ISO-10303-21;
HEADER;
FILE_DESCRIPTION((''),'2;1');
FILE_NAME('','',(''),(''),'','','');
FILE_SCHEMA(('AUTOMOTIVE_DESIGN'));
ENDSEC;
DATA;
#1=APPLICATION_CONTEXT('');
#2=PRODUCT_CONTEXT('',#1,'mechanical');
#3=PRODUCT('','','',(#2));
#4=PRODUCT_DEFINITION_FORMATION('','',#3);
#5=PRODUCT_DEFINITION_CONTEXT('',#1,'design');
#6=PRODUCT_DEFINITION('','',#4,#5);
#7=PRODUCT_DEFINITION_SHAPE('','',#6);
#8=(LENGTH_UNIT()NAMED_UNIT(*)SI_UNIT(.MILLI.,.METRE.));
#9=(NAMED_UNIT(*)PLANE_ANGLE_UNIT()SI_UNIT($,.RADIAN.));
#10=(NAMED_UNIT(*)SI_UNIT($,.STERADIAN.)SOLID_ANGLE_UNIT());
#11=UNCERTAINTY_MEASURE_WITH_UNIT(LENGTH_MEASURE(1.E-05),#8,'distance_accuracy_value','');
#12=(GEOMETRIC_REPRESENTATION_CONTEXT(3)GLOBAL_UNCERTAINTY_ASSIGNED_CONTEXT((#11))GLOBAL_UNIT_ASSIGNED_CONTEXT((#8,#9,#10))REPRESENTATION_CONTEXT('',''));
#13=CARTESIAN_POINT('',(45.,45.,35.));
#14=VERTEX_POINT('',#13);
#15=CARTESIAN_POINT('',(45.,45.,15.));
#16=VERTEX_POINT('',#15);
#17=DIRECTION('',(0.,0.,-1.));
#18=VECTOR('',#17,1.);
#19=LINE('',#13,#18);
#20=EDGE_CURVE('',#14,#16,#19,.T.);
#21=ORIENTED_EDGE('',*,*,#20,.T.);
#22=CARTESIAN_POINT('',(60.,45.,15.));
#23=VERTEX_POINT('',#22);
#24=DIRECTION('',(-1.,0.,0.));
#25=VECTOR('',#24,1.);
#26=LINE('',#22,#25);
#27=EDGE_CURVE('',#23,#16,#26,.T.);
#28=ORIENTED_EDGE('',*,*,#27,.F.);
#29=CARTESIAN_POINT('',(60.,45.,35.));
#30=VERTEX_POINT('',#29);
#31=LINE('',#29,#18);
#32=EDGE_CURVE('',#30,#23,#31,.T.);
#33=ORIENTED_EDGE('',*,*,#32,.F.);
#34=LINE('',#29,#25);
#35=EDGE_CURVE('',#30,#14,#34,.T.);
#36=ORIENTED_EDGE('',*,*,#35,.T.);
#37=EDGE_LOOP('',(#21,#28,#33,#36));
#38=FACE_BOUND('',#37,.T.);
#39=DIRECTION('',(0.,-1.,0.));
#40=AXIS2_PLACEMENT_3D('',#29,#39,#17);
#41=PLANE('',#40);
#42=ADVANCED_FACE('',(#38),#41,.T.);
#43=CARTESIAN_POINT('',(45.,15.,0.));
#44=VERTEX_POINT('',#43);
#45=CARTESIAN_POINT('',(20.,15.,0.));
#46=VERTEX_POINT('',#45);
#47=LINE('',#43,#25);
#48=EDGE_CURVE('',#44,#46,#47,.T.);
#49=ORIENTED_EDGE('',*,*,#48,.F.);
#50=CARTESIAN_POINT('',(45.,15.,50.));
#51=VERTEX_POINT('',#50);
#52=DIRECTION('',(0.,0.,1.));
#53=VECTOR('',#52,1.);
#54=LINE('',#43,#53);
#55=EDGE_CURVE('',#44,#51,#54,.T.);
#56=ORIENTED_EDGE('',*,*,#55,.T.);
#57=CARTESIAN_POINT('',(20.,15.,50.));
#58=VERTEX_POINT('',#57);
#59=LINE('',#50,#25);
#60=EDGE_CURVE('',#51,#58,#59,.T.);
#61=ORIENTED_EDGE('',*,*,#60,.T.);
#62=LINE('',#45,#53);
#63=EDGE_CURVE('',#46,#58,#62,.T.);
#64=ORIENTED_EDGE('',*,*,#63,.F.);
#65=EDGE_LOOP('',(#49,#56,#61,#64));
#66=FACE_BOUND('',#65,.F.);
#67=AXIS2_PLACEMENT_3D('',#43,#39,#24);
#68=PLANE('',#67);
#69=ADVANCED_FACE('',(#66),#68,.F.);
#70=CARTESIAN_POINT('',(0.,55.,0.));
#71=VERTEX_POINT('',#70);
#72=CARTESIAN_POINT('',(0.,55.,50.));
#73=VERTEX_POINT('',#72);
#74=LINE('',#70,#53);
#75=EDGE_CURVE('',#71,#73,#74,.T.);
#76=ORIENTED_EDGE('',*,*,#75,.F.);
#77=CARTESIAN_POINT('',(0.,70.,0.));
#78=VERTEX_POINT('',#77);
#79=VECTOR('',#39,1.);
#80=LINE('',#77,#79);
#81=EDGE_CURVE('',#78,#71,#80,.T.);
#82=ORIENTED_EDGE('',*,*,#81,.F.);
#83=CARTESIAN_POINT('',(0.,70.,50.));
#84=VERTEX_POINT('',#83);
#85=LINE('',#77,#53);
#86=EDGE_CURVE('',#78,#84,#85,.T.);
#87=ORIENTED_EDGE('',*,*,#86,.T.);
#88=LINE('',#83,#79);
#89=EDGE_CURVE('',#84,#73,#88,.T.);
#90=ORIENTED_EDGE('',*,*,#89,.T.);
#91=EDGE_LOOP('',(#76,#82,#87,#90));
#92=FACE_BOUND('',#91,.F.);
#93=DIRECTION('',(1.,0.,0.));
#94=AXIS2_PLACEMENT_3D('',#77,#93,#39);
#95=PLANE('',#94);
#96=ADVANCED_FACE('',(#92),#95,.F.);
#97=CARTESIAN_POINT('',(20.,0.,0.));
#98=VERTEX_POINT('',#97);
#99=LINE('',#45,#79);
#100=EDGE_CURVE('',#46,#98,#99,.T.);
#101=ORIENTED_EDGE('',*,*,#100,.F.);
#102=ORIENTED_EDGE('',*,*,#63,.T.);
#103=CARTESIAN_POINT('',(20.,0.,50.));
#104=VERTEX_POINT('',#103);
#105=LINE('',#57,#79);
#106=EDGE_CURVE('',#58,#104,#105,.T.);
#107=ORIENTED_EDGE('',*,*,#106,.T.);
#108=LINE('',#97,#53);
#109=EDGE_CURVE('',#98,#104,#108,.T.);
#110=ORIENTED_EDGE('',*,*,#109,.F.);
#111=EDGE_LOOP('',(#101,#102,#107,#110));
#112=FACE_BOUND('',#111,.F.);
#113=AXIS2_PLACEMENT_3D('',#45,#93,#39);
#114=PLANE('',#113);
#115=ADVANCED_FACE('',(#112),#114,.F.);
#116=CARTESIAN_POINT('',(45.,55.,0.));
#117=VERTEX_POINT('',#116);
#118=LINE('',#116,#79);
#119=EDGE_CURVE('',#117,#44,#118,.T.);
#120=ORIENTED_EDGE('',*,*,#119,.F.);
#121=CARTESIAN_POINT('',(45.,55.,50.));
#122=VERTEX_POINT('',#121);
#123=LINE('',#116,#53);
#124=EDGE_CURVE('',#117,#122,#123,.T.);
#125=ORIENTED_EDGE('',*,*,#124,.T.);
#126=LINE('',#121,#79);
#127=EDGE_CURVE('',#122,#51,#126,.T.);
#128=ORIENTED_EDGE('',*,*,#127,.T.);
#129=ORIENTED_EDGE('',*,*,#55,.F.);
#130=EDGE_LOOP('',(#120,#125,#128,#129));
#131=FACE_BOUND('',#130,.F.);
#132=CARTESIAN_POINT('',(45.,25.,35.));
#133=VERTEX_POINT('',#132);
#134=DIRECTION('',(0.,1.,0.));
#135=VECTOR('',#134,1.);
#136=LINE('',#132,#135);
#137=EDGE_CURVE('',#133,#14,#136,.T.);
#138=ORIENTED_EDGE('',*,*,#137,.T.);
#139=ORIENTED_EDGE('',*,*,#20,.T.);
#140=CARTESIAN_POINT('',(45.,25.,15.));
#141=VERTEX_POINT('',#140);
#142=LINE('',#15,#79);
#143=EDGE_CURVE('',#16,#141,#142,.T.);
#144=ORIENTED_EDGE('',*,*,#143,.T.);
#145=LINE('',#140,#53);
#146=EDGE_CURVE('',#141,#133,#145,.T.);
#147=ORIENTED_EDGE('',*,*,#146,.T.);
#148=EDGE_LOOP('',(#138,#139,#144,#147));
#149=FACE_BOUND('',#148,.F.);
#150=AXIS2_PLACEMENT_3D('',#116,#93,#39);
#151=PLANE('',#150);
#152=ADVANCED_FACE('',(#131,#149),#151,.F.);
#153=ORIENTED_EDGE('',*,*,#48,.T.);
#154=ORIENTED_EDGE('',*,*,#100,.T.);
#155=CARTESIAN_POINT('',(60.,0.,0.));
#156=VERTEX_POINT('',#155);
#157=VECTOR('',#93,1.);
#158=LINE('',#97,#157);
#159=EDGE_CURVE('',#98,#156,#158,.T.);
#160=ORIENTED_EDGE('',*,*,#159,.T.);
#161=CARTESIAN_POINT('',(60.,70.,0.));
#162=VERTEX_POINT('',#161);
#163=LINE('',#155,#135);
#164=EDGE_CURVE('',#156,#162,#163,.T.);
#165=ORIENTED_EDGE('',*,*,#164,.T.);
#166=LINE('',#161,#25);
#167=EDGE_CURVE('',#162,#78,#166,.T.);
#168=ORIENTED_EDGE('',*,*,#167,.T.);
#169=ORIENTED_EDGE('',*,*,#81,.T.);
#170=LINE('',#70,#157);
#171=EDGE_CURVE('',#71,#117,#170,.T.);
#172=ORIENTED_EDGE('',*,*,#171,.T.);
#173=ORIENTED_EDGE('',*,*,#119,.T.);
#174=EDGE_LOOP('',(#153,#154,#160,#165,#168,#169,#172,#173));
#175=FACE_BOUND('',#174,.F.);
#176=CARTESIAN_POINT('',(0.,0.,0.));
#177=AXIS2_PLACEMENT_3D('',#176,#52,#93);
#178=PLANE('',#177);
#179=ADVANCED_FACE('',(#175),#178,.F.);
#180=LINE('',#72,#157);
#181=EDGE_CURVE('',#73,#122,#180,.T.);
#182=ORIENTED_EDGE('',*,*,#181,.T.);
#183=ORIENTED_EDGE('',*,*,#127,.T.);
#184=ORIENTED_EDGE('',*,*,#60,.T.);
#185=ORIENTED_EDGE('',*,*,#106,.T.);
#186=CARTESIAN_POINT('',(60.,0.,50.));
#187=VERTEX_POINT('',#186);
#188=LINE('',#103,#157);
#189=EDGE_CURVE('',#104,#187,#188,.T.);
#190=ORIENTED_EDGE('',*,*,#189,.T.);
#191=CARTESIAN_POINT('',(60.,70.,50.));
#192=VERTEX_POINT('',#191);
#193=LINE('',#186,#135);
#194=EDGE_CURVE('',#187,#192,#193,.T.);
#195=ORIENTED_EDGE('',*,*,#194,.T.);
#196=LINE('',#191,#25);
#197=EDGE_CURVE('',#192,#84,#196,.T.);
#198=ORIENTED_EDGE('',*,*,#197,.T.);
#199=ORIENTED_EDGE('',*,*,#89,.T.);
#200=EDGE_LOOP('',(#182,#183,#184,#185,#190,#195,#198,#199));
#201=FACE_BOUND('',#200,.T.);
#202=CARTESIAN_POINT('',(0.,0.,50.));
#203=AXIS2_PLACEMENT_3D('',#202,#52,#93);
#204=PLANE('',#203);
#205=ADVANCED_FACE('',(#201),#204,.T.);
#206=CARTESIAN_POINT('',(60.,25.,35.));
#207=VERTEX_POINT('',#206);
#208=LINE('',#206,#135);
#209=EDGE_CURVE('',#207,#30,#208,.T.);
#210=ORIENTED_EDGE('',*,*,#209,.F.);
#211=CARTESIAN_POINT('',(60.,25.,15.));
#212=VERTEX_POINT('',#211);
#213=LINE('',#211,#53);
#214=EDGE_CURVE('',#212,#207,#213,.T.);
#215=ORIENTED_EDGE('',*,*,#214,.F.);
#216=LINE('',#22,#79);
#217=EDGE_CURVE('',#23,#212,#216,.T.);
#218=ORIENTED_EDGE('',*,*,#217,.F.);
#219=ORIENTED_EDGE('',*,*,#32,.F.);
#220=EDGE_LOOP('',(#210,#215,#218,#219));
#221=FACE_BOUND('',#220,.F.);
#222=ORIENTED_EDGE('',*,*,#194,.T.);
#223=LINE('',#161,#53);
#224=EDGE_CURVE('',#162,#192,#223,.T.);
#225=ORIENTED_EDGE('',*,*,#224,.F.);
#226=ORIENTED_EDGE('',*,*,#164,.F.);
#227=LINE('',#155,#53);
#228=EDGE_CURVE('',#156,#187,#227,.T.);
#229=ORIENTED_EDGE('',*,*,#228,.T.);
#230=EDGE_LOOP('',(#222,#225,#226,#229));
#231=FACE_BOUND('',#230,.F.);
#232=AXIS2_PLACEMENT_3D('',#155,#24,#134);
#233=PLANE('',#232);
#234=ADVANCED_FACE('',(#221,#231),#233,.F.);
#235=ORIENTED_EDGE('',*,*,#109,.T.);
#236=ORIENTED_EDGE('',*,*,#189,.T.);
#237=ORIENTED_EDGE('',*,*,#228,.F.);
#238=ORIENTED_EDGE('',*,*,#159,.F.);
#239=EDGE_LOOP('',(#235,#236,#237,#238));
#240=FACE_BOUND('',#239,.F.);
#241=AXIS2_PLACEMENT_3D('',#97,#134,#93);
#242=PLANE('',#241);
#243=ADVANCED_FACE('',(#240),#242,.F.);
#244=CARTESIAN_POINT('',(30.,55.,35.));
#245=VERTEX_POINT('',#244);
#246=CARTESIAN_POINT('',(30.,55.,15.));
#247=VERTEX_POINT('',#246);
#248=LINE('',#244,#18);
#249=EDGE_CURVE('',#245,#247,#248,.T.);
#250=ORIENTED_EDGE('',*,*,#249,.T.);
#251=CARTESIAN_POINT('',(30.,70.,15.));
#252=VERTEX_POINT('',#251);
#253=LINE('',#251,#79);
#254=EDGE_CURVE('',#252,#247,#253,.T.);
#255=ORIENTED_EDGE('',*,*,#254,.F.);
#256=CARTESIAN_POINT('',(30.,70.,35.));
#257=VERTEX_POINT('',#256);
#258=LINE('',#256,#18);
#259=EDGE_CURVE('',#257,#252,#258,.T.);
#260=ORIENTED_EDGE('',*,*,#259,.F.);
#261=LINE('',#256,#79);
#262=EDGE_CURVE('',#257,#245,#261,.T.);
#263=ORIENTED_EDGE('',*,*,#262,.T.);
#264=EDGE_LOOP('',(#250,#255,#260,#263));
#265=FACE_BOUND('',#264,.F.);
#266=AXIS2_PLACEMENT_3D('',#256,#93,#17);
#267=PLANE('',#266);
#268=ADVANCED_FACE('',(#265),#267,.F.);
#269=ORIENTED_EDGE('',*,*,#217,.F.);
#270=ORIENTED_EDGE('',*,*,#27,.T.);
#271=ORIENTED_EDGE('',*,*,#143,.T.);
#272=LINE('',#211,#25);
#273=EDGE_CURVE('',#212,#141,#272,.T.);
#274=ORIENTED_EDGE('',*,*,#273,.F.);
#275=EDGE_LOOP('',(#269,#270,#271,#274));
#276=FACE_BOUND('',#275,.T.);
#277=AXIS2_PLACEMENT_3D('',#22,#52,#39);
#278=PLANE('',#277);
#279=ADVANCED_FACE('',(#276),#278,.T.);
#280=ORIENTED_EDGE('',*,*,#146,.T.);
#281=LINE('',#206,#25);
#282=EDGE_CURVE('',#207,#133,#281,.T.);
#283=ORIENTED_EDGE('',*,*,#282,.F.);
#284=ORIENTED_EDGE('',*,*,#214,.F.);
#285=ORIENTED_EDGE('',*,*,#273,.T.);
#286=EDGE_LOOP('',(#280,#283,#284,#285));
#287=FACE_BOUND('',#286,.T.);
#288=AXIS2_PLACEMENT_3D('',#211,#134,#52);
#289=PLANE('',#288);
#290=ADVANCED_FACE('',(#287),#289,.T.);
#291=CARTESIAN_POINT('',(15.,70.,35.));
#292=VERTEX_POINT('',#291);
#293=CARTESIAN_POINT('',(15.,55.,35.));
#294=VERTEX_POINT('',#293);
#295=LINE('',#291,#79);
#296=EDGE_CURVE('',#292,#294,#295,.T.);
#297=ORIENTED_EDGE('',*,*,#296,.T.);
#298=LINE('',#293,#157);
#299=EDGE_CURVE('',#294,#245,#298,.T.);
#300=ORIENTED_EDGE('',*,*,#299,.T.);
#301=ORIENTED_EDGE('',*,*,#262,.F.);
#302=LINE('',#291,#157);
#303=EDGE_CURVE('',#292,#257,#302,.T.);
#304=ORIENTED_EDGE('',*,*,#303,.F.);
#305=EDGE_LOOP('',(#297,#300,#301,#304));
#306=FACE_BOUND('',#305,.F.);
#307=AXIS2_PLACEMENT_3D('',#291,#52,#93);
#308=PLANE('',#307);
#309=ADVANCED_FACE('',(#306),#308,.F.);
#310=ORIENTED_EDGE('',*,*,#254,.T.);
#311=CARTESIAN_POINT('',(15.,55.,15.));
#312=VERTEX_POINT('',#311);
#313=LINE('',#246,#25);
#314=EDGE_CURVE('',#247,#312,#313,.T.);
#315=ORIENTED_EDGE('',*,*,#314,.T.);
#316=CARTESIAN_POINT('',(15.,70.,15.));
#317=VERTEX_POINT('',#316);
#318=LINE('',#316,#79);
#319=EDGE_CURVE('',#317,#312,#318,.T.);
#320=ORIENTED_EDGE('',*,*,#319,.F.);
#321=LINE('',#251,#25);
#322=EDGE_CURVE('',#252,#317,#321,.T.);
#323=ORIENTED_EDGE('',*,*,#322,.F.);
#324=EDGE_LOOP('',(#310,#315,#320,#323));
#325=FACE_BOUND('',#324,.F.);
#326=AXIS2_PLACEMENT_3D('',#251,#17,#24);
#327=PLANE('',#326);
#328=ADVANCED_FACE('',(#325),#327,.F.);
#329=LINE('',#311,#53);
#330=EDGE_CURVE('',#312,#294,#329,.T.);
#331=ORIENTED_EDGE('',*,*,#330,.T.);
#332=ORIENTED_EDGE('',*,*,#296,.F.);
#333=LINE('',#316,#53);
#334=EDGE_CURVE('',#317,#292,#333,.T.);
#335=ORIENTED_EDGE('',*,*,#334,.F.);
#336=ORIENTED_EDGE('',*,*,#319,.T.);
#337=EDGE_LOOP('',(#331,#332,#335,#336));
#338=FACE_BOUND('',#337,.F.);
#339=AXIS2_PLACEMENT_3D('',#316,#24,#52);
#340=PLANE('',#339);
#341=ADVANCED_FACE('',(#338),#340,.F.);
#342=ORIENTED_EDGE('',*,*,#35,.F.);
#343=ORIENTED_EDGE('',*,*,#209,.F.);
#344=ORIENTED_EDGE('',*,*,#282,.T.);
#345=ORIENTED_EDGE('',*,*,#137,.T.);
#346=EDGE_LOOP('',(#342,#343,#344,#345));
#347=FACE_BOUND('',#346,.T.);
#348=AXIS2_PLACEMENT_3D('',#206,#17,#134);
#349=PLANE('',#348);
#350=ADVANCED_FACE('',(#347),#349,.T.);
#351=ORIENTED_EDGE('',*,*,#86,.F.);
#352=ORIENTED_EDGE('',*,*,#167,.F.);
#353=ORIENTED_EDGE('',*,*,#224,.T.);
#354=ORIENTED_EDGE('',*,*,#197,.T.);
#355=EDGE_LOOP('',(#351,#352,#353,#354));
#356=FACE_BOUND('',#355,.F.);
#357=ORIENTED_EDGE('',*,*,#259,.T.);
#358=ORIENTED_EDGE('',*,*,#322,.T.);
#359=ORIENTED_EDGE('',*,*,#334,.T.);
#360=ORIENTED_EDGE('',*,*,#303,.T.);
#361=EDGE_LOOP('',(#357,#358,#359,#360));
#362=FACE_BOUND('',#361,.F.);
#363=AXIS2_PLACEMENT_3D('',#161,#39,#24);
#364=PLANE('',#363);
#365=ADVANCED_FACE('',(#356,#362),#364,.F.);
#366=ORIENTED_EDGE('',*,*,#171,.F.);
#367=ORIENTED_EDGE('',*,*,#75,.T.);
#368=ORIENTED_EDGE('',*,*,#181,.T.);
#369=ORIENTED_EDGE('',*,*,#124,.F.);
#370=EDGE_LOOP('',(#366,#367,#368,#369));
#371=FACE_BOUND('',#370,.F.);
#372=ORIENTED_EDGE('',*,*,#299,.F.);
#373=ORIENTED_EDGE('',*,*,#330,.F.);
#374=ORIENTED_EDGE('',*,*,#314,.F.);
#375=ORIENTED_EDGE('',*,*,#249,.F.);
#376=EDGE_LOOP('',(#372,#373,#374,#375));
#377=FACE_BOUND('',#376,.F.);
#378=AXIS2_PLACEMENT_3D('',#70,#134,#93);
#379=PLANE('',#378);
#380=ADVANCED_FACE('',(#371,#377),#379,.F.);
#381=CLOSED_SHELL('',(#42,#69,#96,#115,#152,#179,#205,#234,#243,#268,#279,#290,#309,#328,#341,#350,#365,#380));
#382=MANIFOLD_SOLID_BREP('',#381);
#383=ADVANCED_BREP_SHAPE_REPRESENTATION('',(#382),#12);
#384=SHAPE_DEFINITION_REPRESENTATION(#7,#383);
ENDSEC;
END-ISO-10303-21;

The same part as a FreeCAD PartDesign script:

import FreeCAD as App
import Part
import Sketcher


def add_polygon(sketch, points):
    """Adds a closed chain of lines whose ends are joined by coincident constraints."""
    first, n = sketch.GeometryCount, len(points)
    for a, b in zip(points, points[1:] + points[:1]):
        sketch.addGeometry(Part.LineSegment(App.Vector(*a, 0), App.Vector(*b, 0)), False)
    for i in range(n):
        sketch.addConstraint(Sketcher.Constraint("Coincident", first + i, 2, first + (i + 1) % n, 1))

doc = App.newDocument("Part")
body = doc.addObject("PartDesign::Body", "Body")

sketch1 = body.newObject("Sketcher::SketchObject", "Sketch")
sketch1.AttachmentSupport = (doc.getObject("XY_Plane"), [""])
sketch1.MapMode = "FlatFace"
add_polygon(sketch1, [(20, 15), (20, 0), (60, 0), (60, 70), (0, 70), (0, 55), (45, 55), (45, 15)])
sketch1.addConstraint(Sketcher.Constraint("Vertical", 0))
sketch1.addConstraint(Sketcher.Constraint("Horizontal", 1))
sketch1.addConstraint(Sketcher.Constraint("Vertical", 2))
sketch1.addConstraint(Sketcher.Constraint("Horizontal", 3))
sketch1.addConstraint(Sketcher.Constraint("Vertical", 4))
sketch1.addConstraint(Sketcher.Constraint("Horizontal", 5))
sketch1.addConstraint(Sketcher.Constraint("Vertical", 6))
sketch1.addConstraint(Sketcher.Constraint("Horizontal", 7))
sketch1.addConstraint(Sketcher.Constraint("PointOnObject", 0, 2, -1))
sketch1.addConstraint(Sketcher.Constraint("PointOnObject", 3, 2, -2))
sketch1.addConstraint(Sketcher.Constraint("Equal", 0, 4))
sketch1.addConstraint(Sketcher.Constraint("Equal", 1, 6))
sketch1.addConstraint(Sketcher.Constraint("DistanceX", 1, 1, 1, 2, 40.0))
sketch1.addConstraint(Sketcher.Constraint("DistanceY", 2, 1, 2, 2, 70.0))
sketch1.addConstraint(Sketcher.Constraint("DistanceX", 3, 2, 3, 1, 60.0))
sketch1.addConstraint(Sketcher.Constraint("DistanceX", 5, 1, 5, 2, 45.0))
pad1 = body.newObject("PartDesign::Pad", "Pad")
pad1.Profile = sketch1
pad1.Length = 50

sketch2 = body.newObject("Sketcher::SketchObject", "Sketch001")
sketch2.AttachmentSupport = (doc.getObject("XZ_Plane"), [""])
sketch2.MapMode = "FlatFace"
sketch2.AttachmentOffset = App.Placement(App.Vector(0, 0, -70), App.Rotation())
add_polygon(sketch2, [(30, 15), (15, 15), (15, 35), (30, 35)])
sketch2.addConstraint(Sketcher.Constraint("Horizontal", 0))
sketch2.addConstraint(Sketcher.Constraint("Vertical", 1))
sketch2.addConstraint(Sketcher.Constraint("Horizontal", 2))
sketch2.addConstraint(Sketcher.Constraint("Vertical", 3))
sketch2.addConstraint(Sketcher.Constraint("DistanceX", 0, 2, 0, 1, 15.0))
sketch2.addConstraint(Sketcher.Constraint("DistanceY", 1, 1, 1, 2, 20.0))
sketch2.addConstraint(Sketcher.Constraint("DistanceX", -1, 1, 0, 2, 15.0))
sketch2.addConstraint(Sketcher.Constraint("DistanceY", -1, 1, 0, 2, 15.0))
pocket1 = body.newObject("PartDesign::Pocket", "Pocket")
pocket1.Profile = sketch2
pocket1.Length = 15
pocket1.Reversed = True

sketch3 = body.newObject("Sketcher::SketchObject", "Sketch002")
sketch3.AttachmentSupport = (doc.getObject("YZ_Plane"), [""])
sketch3.MapMode = "FlatFace"
sketch3.AttachmentOffset = App.Placement(App.Vector(0, 0, 60), App.Rotation())
add_polygon(sketch3, [(25, 35), (25, 15), (45, 15), (45, 35)])
sketch3.addConstraint(Sketcher.Constraint("Vertical", 0))
sketch3.addConstraint(Sketcher.Constraint("Horizontal", 1))
sketch3.addConstraint(Sketcher.Constraint("Vertical", 2))
sketch3.addConstraint(Sketcher.Constraint("Horizontal", 3))
sketch3.addConstraint(Sketcher.Constraint("Equal", 3, 0))
sketch3.addConstraint(Sketcher.Constraint("DistanceX", 1, 1, 1, 2, 20.0))
sketch3.addConstraint(Sketcher.Constraint("DistanceX", -1, 1, 0, 2, 25.0))
sketch3.addConstraint(Sketcher.Constraint("DistanceY", -1, 1, 0, 2, 15.0))
pocket2 = body.newObject("PartDesign::Pocket", "Pocket001")
pocket2.Profile = sketch3
pocket2.Length = 15

doc.recompute()
